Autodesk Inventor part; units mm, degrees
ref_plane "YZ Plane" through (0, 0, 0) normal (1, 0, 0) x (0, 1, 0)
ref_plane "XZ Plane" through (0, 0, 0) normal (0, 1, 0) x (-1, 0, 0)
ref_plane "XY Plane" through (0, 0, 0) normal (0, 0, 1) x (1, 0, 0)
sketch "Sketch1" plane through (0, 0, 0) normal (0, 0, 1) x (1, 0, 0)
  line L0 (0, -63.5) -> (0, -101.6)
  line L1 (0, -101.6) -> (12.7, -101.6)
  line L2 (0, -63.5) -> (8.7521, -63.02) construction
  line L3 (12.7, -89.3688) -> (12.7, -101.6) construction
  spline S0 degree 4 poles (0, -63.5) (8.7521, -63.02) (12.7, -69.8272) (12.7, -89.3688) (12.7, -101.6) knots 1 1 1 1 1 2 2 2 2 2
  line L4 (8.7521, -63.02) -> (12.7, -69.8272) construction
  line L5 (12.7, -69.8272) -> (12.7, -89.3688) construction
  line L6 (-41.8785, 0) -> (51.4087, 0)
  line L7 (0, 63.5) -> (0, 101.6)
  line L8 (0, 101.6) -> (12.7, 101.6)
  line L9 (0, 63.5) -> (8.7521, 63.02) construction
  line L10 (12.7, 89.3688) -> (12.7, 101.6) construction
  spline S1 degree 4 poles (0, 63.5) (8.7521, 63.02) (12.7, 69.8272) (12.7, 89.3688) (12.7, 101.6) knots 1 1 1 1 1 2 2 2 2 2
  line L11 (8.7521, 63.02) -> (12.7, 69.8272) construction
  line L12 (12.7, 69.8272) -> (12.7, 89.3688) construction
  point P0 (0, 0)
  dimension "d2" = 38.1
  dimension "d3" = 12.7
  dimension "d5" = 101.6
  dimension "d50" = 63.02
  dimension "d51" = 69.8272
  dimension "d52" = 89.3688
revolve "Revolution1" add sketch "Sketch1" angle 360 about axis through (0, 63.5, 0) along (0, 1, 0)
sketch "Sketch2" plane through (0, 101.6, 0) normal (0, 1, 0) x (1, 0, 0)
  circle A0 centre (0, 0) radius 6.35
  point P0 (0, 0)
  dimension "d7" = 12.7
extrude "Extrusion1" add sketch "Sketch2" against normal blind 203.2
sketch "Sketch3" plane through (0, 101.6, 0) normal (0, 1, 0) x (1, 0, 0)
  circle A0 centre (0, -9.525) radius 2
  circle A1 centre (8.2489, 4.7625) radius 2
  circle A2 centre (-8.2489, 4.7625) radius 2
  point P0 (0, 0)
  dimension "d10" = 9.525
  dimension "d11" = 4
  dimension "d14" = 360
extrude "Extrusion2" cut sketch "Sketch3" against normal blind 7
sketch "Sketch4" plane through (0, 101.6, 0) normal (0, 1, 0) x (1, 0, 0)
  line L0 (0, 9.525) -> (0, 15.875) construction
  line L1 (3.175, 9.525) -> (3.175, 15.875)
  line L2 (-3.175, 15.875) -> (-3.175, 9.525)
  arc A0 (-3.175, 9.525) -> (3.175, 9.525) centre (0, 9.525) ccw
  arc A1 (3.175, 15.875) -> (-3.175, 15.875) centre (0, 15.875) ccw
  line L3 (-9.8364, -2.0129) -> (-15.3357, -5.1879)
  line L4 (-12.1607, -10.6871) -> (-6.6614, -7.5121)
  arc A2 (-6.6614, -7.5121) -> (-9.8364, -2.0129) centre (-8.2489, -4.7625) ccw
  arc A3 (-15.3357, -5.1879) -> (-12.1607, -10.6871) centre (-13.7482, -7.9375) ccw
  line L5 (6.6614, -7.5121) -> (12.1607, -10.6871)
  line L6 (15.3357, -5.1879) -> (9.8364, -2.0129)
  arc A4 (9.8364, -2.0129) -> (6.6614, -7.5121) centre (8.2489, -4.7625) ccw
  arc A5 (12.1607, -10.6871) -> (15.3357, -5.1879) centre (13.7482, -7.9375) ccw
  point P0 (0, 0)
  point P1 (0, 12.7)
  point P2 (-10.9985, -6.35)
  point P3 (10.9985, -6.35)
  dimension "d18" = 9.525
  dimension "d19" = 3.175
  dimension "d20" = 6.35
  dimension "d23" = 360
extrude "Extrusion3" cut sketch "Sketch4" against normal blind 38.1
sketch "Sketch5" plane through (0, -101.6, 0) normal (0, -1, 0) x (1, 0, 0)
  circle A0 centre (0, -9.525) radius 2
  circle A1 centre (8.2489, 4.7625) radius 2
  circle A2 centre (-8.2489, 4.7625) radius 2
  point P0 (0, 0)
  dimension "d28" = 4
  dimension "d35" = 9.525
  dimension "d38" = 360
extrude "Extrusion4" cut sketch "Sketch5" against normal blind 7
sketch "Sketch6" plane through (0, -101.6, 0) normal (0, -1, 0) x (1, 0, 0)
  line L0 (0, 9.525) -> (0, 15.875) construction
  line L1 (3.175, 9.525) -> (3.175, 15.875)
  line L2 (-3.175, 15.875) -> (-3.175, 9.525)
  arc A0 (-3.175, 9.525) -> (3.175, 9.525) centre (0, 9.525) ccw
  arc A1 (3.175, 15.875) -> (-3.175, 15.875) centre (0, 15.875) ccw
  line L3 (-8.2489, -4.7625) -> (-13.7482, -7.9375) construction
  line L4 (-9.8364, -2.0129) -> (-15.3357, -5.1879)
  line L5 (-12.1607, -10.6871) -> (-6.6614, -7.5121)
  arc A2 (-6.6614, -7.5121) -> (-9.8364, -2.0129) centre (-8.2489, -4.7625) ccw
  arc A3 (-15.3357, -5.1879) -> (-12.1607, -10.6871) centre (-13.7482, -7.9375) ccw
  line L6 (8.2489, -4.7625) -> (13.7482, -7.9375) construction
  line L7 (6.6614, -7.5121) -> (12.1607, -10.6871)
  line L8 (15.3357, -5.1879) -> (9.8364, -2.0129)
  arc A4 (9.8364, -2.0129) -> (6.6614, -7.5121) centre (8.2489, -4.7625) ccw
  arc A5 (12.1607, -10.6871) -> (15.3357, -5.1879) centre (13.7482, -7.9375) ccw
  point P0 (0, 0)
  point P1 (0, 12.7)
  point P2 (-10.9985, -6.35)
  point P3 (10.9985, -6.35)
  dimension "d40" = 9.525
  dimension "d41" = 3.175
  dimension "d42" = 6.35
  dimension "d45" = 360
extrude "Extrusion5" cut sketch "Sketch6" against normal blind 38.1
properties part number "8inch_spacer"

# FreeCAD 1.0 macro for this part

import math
import FreeCAD as App
import Part
import Sketcher

V = App.Vector
Q = App.Units.Quantity

doc = App.newDocument("Part")
body = doc.addObject("PartDesign::Body", "Body")
body.AllowCompound = True

# Sketch on XY plane
sketch1 = doc.addObject("Sketcher::SketchObject", "Sketch")
body.addObject(sketch1)
sketch1.AttachmentSupport = (doc.XY_Plane, [""])
sketch1.MapMode = "FlatFace"
sketch1.addGeometry([
    Part.BSplineCurve([V(0, -63.5, 0), V(8.7521, -63.02, 0), V(12.7, -69.8272, 0), V(12.7, -89.3688, 0), V(12.7, -101.6, 0)], [5, 5], [1, 2], False, 4, [1, 1, 1, 1, 1], False),  # 0
    Part.LineSegment(V(0, -63.5, 0), V(0, -101.6, 0)),  # 1
    Part.LineSegment(V(0, -101.6, 0), V(12.7, -101.6, 0)),  # 2
    Part.LineSegment(V(0, 101.6, 0), V(0, 63.5, 0)),  # 3
    Part.BSplineCurve([V(0, 63.5, 0), V(8.7521, 63.02, 0), V(12.7, 69.8272, 0), V(12.7, 89.3688, 0), V(12.7, 101.6, 0)], [5, 5], [1, 2], False, 4, [1, 1, 1, 1, 1], False),  # 4
    Part.LineSegment(V(12.7, 101.6, 0), V(0, 101.6, 0)),  # 5
], False)
sketch1.addConstraint([
    Sketcher.Constraint("Block", 0),
    Sketcher.Constraint("Block", 4),
    Sketcher.Constraint("Coincident", 0, 1, 1, 1),
    Sketcher.Constraint("Coincident", 1, 2, 2, 1),
    Sketcher.Constraint("Coincident", 2, 2, 0, 2),
    Sketcher.Constraint("Coincident", 3, 2, 4, 1),
    Sketcher.Constraint("Coincident", 4, 2, 5, 1),
    Sketcher.Constraint("Coincident", 5, 2, 3, 1),
    Sketcher.Constraint("Vertical", 1),
    Sketcher.Constraint("Horizontal", 2),
    Sketcher.Constraint("Vertical", 3),
    Sketcher.Constraint("Horizontal", 5),
])
revolution = doc.addObject("PartDesign::Revolution", "Revolution")
body.addObject(revolution)
revolution.Profile = sketch1
revolution.ReferenceAxis = (sketch1, ["V_Axis"])
revolution.Angle = 360

# Sketch on XZ plane
sketch2 = doc.addObject("Sketcher::SketchObject", "Sketch001")
body.addObject(sketch2)
sketch2.AttachmentSupport = (doc.XZ_Plane, [""])
sketch2.MapMode = "FlatFace"
sketch2.AttachmentOffset = App.Placement(V(0, 0, -4 * 25.4), App.Rotation())
sketch2.addGeometry(Part.Circle(V(0, 0, 0), V(0, 0, 1), 6), False)
sketch2.addConstraint([
    Sketcher.Constraint("Coincident", 0, 3, -1, 1),
    Sketcher.Constraint("Diameter", 0, Q("0.5 in")),
])
pad1 = doc.addObject("PartDesign::Pad", "Pad")
body.addObject(pad1)
pad1.Profile = sketch2
pad1.Length = Q("8 in")

# Sketch on XZ plane
sketch3 = doc.addObject("Sketcher::SketchObject", "Sketch002")
body.addObject(sketch3)
sketch3.AttachmentSupport = (doc.XZ_Plane, [""])
sketch3.MapMode = "FlatFace"
sketch3.AttachmentOffset = App.Placement(V(0, 0, -4 * 25.4), App.Rotation())
sketch3.addGeometry([
    Part.Circle(V(0, 9.5, 0), V(0, 0, 1), 2),
    Part.Circle(V(8.2, -4.8, 0), V(0, 0, 1), 2),
    Part.Circle(V(-8.2, -4.8, 0), V(0, 0, 1), 2),
], False)
sketch3.addConstraint([
    Sketcher.Constraint("Equal", 0, 1),
    Sketcher.Constraint("Equal", 1, 2),
    Sketcher.Constraint("Symmetric", 1, 3, 2, 3, -2),
    Sketcher.Constraint("PointOnObject", 0, 3, -2),
    Sketcher.Constraint("Diameter", 0, 4.0),
    Sketcher.Constraint("DistanceY", -1, 1, 0, 3, Q("0.375 in")),
    Sketcher.Constraint("DistanceY", 1, 3, -1, 1, Q("0.1875 in")),
    Sketcher.Constraint("DistanceX", -1, 1, 1, 3, 8.249),
])
pocket1 = doc.addObject("PartDesign::Pocket", "Pocket")
body.addObject(pocket1)
pocket1.Profile = sketch3
pocket1.Length = Q("0.2755906 in")
pocket1.Reversed = True

# Sketch on XZ plane
sketch4 = doc.addObject("Sketcher::SketchObject", "Sketch003")
body.addObject(sketch4)
sketch4.AttachmentSupport = (doc.XZ_Plane, [""])
sketch4.MapMode = "FlatFace"
sketch4.AttachmentOffset = App.Placement(V(0, 0, -4 * 25.4), App.Rotation())
sketch4.addGeometry([
    Part.ArcOfCircle(Part.Circle(V(0, -9.5, 0), V(0, 0, 1), 3.2), math.radians(0), math.radians(180)),  # 0
    Part.LineSegment(V(3.2, -9.5, 0), V(3.2, -15.9, 0)),  # 1
    Part.ArcOfCircle(Part.Circle(V(0, -15.9, 0), V(0, 0, 1), 3.2), math.radians(180), math.radians(360)),  # 2
    Part.LineSegment(V(-3.2, -15.9, 0), V(-3.2, -9.5, 0)),  # 3
    Part.ArcOfCircle(Part.Circle(V(-8.2, 4.8, 0), V(0, 0, 1), 3.2), math.radians(-120), math.radians(60)),  # 4
    Part.LineSegment(V(-9.8, 2, 0), V(-15.3, 5.2, 0)),  # 5
    Part.ArcOfCircle(Part.Circle(V(-13.7, 7.9, 0), V(0, 0, 1), 3.2), math.radians(60), math.radians(240)),  # 6
    Part.LineSegment(V(-12.2, 10.7, 0), V(-6.7, 7.5, 0)),  # 7
    Part.ArcOfCircle(Part.Circle(V(8.2, 4.8, 0), V(0, 0, 1), 3.2), math.radians(120), math.radians(300)),  # 8
    Part.LineSegment(V(6.7, 7.5, 0), V(12.2, 10.7, 0)),  # 9
    Part.ArcOfCircle(Part.Circle(V(13.7, 7.9, 0), V(0, 0, 1), 3.2), math.radians(-60), math.radians(120)),  # 10
    Part.LineSegment(V(15.3, 5.2, 0), V(9.8, 2, 0)),  # 11
], False)
sketch4.addConstraint([
    Sketcher.Constraint("Tangent", 0, 1, 1, 1),
    Sketcher.Constraint("Tangent", 1, 2, 2, 2),
    Sketcher.Constraint("Tangent", 2, 1, 3, 1),
    Sketcher.Constraint("Tangent", 3, 2, 0, 2),
    Sketcher.Constraint("Tangent", 4, 1, 5, 1),
    Sketcher.Constraint("Tangent", 5, 2, 6, 2),
    Sketcher.Constraint("Tangent", 6, 1, 7, 1),
    Sketcher.Constraint("Tangent", 7, 2, 4, 2),
    Sketcher.Constraint("Tangent", 8, 1, 9, 1),
    Sketcher.Constraint("Tangent", 9, 2, 10, 2),
    Sketcher.Constraint("Tangent", 10, 1, 11, 1),
    Sketcher.Constraint("Tangent", 11, 2, 8, 2),
    Sketcher.Constraint("Vertical", 1),
    Sketcher.Constraint("Vertical", 3),
    Sketcher.Constraint("Equal", 2, 4),
    Sketcher.Constraint("Equal", 4, 6),
    Sketcher.Constraint("Equal", 6, 8),
    Sketcher.Constraint("Equal", 8, 10),
    Sketcher.Constraint("Symmetric", 4, 3, 8, 3, -2),
    Sketcher.Constraint("Symmetric", 6, 3, 10, 3, -2),
    Sketcher.Constraint("PointOnObject", 0, 3, -2),
    Sketcher.Constraint("Radius", 0, Q("0.125 in")),
    Sketcher.Constraint("DistanceY", 1, 2, 1, 1, Q("0.25 in")),
    Sketcher.Constraint("Distance", 5, Q("0.25 in")),
    Sketcher.Constraint("DistanceY", 0, 3, -1, 1, Q("0.375 in")),
    Sketcher.Constraint("Angle", 5, Q("150.0002 deg")),
    Sketcher.Constraint("DistanceY", -1, 1, 4, 3, Q("0.1875 in")),
    Sketcher.Constraint("DistanceX", 4, 3, -1, 1, 8.249),
])
pocket2 = doc.addObject("PartDesign::Pocket", "Pocket001")
body.addObject(pocket2)
pocket2.Profile = sketch4
pocket2.Length = Q("1.5 in")
pocket2.Reversed = True

# Sketch on XZ plane
sketch5 = doc.addObject("Sketcher::SketchObject", "Sketch004")
body.addObject(sketch5)
sketch5.AttachmentSupport = (doc.XZ_Plane, [""])
sketch5.MapMode = "FlatFace"
sketch5.AttachmentOffset = App.Placement(V(0, 0, 4 * 25.4), App.Rotation())
sketch5.addGeometry([
    Part.Circle(V(0, -9.5, 0), V(0, 0, 1), 2),
    Part.Circle(V(8.2, 4.8, 0), V(0, 0, 1), 2),
    Part.Circle(V(-8.2, 4.8, 0), V(0, 0, 1), 2),
], False)
sketch5.addConstraint([
    Sketcher.Constraint("Equal", 0, 1),
    Sketcher.Constraint("Equal", 1, 2),
    Sketcher.Constraint("Symmetric", 1, 3, 2, 3, -2),
    Sketcher.Constraint("PointOnObject", 0, 3, -2),
    Sketcher.Constraint("Diameter", 0, 4.0),
    Sketcher.Constraint("DistanceY", 0, 3, -1, 1, Q("0.375 in")),
    Sketcher.Constraint("DistanceY", -1, 1, 1, 3, Q("0.1875 in")),
    Sketcher.Constraint("DistanceX", -1, 1, 1, 3, 8.249),
])
pocket3 = doc.addObject("PartDesign::Pocket", "Pocket002")
body.addObject(pocket3)
pocket3.Profile = sketch5
pocket3.Length = Q("0.2755906 in")

# Sketch on XZ plane
sketch6 = doc.addObject("Sketcher::SketchObject", "Sketch005")
body.addObject(sketch6)
sketch6.AttachmentSupport = (doc.XZ_Plane, [""])
sketch6.MapMode = "FlatFace"
sketch6.AttachmentOffset = App.Placement(V(0, 0, 4 * 25.4), App.Rotation())
sketch6.addGeometry([
    Part.ArcOfCircle(Part.Circle(V(0, 9.5, 0), V(0, 0, 1), 3.2), math.radians(180), math.radians(360)),  # 0
    Part.LineSegment(V(3.2, 9.5, 0), V(3.2, 15.9, 0)),  # 1
    Part.ArcOfCircle(Part.Circle(V(0, 15.9, 0), V(0, 0, 1), 3.2), math.radians(0), math.radians(180)),  # 2
    Part.LineSegment(V(-3.2, 15.9, 0), V(-3.2, 9.5, 0)),  # 3
    Part.ArcOfCircle(Part.Circle(V(-8.2, -4.8, 0), V(0, 0, 1), 3.2), math.radians(-60), math.radians(120)),  # 4
    Part.LineSegment(V(-9.8, -2, 0), V(-15.3, -5.2, 0)),  # 5
    Part.ArcOfCircle(Part.Circle(V(-13.7, -7.9, 0), V(0, 0, 1), 3.2), math.radians(120), math.radians(300)),  # 6
    Part.LineSegment(V(-12.2, -10.7, 0), V(-6.7, -7.5, 0)),  # 7
    Part.ArcOfCircle(Part.Circle(V(8.2, -4.8, 0), V(0, 0, 1), 3.2), math.radians(60), math.radians(240)),  # 8
    Part.LineSegment(V(6.7, -7.5, 0), V(12.2, -10.7, 0)),  # 9
    Part.ArcOfCircle(Part.Circle(V(13.7, -7.9, 0), V(0, 0, 1), 3.2), math.radians(-120), math.radians(60)),  # 10
    Part.LineSegment(V(15.3, -5.2, 0), V(9.8, -2, 0)),  # 11
], False)
sketch6.addConstraint([
    Sketcher.Constraint("Tangent", 0, 2, 1, 1),
    Sketcher.Constraint("Tangent", 1, 2, 2, 1),
    Sketcher.Constraint("Tangent", 2, 2, 3, 1),
    Sketcher.Constraint("Tangent", 3, 2, 0, 1),
    Sketcher.Constraint("Tangent", 4, 2, 5, 1),
    Sketcher.Constraint("Tangent", 5, 2, 6, 1),
    Sketcher.Constraint("Tangent", 6, 2, 7, 1),
    Sketcher.Constraint("Tangent", 7, 2, 4, 1),
    Sketcher.Constraint("Tangent", 8, 2, 9, 1),
    Sketcher.Constraint("Tangent", 9, 2, 10, 1),
    Sketcher.Constraint("Tangent", 10, 2, 11, 1),
    Sketcher.Constraint("Tangent", 11, 2, 8, 1),
    Sketcher.Constraint("Vertical", 1),
    Sketcher.Constraint("Vertical", 3),
    Sketcher.Constraint("Equal", 2, 4),
    Sketcher.Constraint("Equal", 4, 6),
    Sketcher.Constraint("Equal", 6, 8),
    Sketcher.Constraint("Equal", 8, 10),
    Sketcher.Constraint("Symmetric", 4, 3, 8, 3, -2),
    Sketcher.Constraint("Symmetric", 6, 3, 10, 3, -2),
    Sketcher.Constraint("PointOnObject", 0, 3, -2),
    Sketcher.Constraint("Radius", 0, Q("0.125 in")),
    Sketcher.Constraint("DistanceY", 1, 1, 1, 2, Q("0.25 in")),
    Sketcher.Constraint("Distance", 5, Q("0.25 in")),
    Sketcher.Constraint("DistanceY", -1, 1, 0, 3, Q("0.375 in")),
    Sketcher.Constraint("Angle", 5, Q("-150.0002 deg")),
    Sketcher.Constraint("DistanceY", 4, 3, -1, 1, Q("0.1875 in")),
    Sketcher.Constraint("DistanceX", 4, 3, -1, 1, 8.249),
])
pocket4 = doc.addObject("PartDesign::Pocket", "Pocket003")
body.addObject(pocket4)
pocket4.Profile = sketch6
pocket4.Length = Q("1.5 in")

doc.recompute()
